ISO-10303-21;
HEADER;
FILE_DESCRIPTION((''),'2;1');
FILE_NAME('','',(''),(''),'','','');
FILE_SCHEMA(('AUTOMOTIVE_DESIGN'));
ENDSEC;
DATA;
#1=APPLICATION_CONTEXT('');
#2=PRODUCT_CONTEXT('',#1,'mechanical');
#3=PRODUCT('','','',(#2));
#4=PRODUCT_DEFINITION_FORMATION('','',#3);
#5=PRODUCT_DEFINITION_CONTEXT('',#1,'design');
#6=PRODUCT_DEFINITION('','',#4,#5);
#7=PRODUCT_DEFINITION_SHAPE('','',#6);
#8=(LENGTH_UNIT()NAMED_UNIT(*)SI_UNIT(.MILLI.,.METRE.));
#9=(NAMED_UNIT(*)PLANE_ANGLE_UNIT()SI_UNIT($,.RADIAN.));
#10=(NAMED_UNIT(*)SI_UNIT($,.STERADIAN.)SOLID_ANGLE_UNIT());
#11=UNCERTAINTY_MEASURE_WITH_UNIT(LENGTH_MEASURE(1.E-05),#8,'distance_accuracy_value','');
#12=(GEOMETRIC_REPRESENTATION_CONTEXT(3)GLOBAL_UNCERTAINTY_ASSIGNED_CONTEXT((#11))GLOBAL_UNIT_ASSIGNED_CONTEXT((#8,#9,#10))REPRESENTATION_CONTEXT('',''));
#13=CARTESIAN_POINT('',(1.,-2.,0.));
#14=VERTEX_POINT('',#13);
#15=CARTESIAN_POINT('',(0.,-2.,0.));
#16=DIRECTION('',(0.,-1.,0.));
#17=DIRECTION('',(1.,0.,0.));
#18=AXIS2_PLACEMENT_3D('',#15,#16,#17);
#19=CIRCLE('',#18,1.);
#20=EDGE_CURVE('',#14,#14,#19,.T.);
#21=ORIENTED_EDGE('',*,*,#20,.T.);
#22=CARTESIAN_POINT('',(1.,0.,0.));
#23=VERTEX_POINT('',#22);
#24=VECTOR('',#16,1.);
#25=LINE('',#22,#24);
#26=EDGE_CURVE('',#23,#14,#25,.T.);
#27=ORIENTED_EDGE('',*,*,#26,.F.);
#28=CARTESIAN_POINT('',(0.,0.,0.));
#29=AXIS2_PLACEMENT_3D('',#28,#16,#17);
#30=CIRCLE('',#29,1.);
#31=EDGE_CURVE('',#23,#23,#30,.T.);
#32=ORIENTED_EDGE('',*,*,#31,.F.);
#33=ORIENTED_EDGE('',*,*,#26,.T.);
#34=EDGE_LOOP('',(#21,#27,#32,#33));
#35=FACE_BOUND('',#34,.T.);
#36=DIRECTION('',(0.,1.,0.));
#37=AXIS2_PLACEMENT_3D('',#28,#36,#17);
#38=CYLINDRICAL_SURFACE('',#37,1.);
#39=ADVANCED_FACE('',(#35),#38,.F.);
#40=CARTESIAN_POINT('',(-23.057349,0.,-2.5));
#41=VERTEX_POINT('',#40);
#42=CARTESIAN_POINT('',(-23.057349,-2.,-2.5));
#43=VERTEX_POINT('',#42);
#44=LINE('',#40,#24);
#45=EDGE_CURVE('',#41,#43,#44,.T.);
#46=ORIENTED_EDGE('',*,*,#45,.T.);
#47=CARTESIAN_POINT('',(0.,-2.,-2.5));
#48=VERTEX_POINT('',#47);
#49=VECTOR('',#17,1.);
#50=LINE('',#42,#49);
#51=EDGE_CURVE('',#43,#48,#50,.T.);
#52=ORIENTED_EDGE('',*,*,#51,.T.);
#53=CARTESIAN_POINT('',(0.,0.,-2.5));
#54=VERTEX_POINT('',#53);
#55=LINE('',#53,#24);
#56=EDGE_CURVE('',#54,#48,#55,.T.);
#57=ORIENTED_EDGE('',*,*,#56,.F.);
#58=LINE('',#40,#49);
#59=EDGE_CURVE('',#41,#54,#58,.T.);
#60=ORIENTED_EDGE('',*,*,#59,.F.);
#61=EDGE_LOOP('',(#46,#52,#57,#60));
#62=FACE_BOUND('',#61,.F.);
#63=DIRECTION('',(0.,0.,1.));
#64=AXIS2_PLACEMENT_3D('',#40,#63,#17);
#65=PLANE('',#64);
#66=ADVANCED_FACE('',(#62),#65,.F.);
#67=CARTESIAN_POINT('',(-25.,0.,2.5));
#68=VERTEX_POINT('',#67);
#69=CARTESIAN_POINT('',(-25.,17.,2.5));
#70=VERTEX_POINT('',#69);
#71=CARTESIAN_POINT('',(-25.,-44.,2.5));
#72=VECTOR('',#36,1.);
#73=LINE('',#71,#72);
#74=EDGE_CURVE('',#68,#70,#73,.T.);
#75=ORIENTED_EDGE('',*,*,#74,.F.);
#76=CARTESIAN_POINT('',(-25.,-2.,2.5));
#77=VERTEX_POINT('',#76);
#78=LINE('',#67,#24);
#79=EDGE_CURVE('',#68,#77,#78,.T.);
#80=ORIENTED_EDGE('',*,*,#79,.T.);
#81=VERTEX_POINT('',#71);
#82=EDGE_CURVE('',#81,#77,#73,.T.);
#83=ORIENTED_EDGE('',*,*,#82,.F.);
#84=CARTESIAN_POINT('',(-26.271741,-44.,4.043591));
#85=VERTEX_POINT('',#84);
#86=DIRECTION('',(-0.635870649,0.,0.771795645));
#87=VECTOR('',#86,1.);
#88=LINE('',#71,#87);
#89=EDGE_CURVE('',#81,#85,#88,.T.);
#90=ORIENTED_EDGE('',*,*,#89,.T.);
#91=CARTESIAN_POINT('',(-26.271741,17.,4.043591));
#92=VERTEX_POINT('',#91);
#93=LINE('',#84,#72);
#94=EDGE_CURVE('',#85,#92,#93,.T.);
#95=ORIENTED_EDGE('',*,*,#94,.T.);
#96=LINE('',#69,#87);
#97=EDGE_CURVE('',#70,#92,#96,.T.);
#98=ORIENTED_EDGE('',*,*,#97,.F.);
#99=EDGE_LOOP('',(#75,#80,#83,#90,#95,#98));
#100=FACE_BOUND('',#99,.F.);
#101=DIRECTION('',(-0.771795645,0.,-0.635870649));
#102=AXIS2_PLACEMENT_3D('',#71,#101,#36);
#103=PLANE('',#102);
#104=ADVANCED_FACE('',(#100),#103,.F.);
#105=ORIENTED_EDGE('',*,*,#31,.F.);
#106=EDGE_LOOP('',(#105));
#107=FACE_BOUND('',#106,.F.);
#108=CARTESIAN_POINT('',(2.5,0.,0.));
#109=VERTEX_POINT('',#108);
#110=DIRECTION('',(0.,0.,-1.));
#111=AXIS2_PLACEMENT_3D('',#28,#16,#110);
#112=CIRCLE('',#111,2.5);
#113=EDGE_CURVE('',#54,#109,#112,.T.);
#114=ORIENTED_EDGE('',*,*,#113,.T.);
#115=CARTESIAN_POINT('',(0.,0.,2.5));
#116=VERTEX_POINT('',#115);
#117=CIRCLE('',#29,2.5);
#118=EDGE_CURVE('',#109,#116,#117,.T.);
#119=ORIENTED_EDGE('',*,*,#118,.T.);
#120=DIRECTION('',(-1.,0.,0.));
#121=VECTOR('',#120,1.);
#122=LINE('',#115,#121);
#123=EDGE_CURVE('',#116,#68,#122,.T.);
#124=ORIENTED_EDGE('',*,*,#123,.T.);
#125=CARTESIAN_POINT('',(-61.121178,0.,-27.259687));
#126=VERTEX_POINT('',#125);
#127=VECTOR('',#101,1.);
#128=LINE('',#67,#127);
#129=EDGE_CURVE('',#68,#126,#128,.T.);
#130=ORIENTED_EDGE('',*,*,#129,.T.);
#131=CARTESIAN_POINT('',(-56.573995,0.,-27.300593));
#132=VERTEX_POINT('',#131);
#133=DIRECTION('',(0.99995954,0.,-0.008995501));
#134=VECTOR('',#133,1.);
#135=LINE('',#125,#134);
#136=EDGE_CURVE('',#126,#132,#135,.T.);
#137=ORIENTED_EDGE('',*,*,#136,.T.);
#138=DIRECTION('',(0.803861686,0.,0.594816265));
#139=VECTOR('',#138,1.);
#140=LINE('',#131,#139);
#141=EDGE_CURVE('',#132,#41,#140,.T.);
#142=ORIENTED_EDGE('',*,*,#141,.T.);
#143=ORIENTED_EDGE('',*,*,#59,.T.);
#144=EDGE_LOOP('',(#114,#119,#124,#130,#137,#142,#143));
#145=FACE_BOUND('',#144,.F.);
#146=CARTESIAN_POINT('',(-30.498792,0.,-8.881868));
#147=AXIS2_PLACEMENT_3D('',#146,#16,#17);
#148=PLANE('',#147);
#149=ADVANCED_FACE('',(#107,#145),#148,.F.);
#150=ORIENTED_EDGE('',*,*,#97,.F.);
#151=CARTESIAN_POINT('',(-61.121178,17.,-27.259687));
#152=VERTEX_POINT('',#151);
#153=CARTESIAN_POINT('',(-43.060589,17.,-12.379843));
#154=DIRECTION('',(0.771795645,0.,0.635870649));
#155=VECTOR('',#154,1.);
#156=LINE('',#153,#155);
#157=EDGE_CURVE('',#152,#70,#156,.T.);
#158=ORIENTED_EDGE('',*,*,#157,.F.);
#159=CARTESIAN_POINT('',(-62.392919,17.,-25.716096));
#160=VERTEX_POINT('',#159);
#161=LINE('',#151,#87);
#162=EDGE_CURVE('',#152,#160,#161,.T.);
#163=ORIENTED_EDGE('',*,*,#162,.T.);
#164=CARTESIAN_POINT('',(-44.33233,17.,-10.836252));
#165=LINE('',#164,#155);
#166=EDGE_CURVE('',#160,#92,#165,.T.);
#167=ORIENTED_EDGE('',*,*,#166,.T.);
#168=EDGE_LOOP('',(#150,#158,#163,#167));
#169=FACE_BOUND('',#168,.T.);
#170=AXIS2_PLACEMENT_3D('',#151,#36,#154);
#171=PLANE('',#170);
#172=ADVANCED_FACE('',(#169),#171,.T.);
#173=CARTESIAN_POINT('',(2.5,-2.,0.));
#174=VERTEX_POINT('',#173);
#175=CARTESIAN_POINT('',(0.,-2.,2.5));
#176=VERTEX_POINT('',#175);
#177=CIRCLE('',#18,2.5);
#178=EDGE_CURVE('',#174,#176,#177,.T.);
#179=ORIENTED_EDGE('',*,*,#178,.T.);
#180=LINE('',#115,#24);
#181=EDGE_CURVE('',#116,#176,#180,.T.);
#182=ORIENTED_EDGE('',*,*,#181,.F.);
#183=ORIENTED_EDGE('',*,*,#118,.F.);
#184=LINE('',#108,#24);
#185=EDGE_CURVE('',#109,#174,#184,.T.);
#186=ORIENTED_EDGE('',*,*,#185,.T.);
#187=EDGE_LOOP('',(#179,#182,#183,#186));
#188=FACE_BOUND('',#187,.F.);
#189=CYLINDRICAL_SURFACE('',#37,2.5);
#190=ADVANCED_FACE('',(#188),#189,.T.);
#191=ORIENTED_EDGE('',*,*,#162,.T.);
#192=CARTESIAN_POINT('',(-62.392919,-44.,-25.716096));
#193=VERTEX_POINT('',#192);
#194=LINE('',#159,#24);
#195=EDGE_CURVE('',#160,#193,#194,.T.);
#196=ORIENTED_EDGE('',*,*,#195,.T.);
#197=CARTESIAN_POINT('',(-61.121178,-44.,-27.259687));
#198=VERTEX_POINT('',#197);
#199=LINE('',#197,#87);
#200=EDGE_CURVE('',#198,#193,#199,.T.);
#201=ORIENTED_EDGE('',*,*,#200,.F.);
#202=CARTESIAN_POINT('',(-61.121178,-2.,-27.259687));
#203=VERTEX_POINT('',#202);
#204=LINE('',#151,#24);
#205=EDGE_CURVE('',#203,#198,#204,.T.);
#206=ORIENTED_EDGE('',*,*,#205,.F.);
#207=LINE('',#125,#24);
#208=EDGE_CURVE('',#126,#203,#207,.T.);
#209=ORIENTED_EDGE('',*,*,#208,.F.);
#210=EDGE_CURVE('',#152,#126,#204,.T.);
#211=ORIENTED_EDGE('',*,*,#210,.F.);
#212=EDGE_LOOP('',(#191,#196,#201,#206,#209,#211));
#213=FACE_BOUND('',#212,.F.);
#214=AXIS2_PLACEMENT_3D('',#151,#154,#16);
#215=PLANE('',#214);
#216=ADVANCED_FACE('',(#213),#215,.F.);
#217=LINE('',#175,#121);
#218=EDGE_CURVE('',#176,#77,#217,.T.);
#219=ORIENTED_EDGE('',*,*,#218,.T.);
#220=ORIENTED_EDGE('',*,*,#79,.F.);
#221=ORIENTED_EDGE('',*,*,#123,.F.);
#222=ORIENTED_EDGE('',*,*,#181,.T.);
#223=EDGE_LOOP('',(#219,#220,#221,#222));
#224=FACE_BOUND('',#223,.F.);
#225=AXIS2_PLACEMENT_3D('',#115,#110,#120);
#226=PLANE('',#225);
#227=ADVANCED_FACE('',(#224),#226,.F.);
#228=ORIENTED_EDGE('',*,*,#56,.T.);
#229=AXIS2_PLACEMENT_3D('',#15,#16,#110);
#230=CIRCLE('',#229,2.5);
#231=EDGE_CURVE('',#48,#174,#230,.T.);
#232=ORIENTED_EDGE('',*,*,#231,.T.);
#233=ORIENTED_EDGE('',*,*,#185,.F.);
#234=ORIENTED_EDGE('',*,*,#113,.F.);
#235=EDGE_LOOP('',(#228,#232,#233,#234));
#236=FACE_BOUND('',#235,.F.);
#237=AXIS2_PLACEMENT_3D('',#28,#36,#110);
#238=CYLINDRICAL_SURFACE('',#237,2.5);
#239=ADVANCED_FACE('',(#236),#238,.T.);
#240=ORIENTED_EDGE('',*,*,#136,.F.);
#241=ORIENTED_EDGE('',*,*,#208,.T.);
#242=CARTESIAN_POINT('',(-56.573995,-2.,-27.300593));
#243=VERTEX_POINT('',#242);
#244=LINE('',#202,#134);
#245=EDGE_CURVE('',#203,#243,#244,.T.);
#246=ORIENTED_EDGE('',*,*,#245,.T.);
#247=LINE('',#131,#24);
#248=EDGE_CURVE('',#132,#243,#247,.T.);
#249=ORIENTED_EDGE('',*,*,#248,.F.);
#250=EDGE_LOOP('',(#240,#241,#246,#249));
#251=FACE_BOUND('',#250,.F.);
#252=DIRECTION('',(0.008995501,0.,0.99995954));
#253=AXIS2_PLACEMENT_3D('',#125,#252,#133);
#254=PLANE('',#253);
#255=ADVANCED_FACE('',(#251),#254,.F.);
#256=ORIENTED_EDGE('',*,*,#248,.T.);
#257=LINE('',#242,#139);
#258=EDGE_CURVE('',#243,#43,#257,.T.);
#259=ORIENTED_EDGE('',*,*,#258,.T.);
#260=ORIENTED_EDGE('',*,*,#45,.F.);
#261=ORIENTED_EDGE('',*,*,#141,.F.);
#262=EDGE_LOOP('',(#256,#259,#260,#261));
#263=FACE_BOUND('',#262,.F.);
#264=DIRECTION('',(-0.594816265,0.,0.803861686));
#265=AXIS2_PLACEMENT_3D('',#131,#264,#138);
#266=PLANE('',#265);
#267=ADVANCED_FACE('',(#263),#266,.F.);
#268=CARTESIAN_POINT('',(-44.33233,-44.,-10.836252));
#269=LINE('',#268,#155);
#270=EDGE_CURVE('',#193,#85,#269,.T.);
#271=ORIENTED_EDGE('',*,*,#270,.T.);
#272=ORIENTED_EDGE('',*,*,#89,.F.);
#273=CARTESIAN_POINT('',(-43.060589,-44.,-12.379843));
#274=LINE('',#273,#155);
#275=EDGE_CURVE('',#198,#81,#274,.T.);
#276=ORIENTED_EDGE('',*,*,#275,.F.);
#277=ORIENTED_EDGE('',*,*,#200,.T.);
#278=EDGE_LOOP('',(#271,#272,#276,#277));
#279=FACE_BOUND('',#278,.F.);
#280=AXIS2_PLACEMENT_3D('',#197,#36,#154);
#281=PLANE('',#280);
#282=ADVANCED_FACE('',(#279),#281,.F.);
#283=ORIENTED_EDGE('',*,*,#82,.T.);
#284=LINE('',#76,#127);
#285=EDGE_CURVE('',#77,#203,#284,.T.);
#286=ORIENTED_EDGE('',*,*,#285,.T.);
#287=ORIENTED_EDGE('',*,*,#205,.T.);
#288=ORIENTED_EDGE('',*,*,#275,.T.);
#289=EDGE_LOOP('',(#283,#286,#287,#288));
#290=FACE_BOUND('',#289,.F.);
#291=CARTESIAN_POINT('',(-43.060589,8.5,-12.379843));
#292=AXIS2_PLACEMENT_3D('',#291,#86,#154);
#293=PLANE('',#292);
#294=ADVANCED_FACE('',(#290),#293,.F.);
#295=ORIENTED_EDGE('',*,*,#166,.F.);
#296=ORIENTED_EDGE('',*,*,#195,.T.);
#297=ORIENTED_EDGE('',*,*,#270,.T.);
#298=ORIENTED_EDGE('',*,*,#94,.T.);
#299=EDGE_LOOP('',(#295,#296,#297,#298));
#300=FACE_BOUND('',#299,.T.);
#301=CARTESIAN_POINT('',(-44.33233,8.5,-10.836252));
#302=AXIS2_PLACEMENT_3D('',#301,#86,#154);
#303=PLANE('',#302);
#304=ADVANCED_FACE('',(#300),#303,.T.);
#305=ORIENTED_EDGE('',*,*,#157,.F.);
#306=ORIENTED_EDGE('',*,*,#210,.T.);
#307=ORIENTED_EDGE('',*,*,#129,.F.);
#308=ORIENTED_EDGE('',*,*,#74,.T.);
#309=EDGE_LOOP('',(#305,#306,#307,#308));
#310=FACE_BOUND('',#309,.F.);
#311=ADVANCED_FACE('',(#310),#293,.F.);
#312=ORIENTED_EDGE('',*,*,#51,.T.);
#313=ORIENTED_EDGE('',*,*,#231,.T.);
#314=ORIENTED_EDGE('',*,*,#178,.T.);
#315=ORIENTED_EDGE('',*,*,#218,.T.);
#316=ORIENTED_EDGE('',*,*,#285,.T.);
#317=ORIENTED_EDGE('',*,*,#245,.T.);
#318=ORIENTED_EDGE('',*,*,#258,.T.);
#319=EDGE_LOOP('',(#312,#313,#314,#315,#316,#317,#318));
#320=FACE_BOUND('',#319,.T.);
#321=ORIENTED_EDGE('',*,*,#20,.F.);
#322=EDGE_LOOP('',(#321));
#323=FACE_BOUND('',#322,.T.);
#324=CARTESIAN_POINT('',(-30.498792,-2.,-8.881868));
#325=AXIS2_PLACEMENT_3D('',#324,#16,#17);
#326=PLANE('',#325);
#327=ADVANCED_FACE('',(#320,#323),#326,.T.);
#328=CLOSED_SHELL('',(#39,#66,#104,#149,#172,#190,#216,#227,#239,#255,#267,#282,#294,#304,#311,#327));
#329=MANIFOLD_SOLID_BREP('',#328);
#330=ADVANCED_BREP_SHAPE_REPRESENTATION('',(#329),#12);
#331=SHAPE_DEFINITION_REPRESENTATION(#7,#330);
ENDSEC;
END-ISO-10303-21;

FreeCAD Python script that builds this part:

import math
import FreeCAD as App
import Part
import Sketcher
from FreeCAD import Vector

doc = App.newDocument("Part")
body = doc.addObject("PartDesign::Body", "Body")

sketch1 = doc.addObject("Sketcher::SketchObject", "Sketch")
body.addObject(sketch1)
sketch1.AttachmentSupport = (doc.XZ_Plane, [""])
sketch1.MapMode = "FlatFace"
sketch1.addGeometry(Part.LineSegment(Vector(0, 2.5, 0), Vector(-25, 2.5, 0)), False)
sketch1.addGeometry(Part.LineSegment(Vector(-25, 2.5, 0), Vector(-61.1, -27.3, 0)), False)
sketch1.addGeometry(Part.LineSegment(Vector(-61.1, -27.3, 0), Vector(-56.6, -27.3, 0)), False)
sketch1.addGeometry(Part.LineSegment(Vector(-56.6, -27.3, 0), Vector(-23.1, -2.5, 0)), False)
sketch1.addGeometry(Part.LineSegment(Vector(-23.1, -2.5, 0), Vector(0, -2.5, 0)), False)
sketch1.addGeometry(Part.ArcOfCircle(Part.Circle(Vector(0, 0, 0), Vector(0, 0, 1), 2.5), math.radians(-90), math.radians(0)), False)
sketch1.addGeometry(Part.ArcOfCircle(Part.Circle(Vector(0, 0, 0), Vector(0, 0, 1), 2.5), math.radians(0), math.radians(90)), False)
sketch1.addGeometry(Part.Circle(Vector(0, 0, 0), Vector(0, 0, 1), 1), False)
sketch1.addConstraint(Sketcher.Constraint("Coincident", 0, 2, 1, 1))
sketch1.addConstraint(Sketcher.Constraint("Coincident", 1, 2, 2, 1))
sketch1.addConstraint(Sketcher.Constraint("Coincident", 2, 2, 3, 1))
sketch1.addConstraint(Sketcher.Constraint("Coincident", 3, 2, 4, 1))
sketch1.addConstraint(Sketcher.Constraint("Tangent", 4, 2, 5, 1))
sketch1.addConstraint(Sketcher.Constraint("Tangent", 5, 2, 6, 1))
sketch1.addConstraint(Sketcher.Constraint("Tangent", 6, 2, 0, 1))
sketch1.addConstraint(Sketcher.Constraint("Horizontal", 0))
sketch1.addConstraint(Sketcher.Constraint("Horizontal", 4))
sketch1.addConstraint(Sketcher.Constraint("Coincident", 5, 3, -1, 1))
sketch1.addConstraint(Sketcher.Constraint("Coincident", 7, 3, -1, 1))
sketch1.addConstraint(Sketcher.Constraint("Equal", 5, 6))
sketch1.addConstraint(Sketcher.Constraint("PointOnObject", 5, 2, -1))
sketch1.addConstraint(Sketcher.Constraint("Diameter", 7, 2.0))
sketch1.addConstraint(Sketcher.Constraint("Radius", 5, 2.5))
sketch1.addConstraint(Sketcher.Constraint("DistanceX", 0, 2, 0, 1, 25.0))
sketch1.addConstraint(Sketcher.Constraint("DistanceX", 4, 1, 4, 2, 23.057349))
sketch1.addConstraint(Sketcher.Constraint("Distance", 1, 46.801479))
sketch1.addConstraint(Sketcher.Constraint("Distance", 2, 4.547367))
sketch1.addConstraint(Sketcher.Constraint("Distance", 3, 41.694544))
sketch1.addConstraint(Sketcher.Constraint("DistanceX", 1, 2, -1, 1, 61.121178))
pad1 = doc.addObject("PartDesign::Pad", "Pad")
body.addObject(pad1)
pad1.Profile = sketch1
pad1.Length = 2

sketch2 = doc.addObject("Sketcher::SketchObject", "Sketch001")
body.addObject(sketch2)
sketch2.Placement = App.Placement(Vector(-11.335193, 0, 13.758226), App.Rotation(Vector(0.771795645, 0, 0.635870649), Vector(0, 1, 0), Vector(-0.635870649, 0, 0.771795645), "ZXY"))
sketch2.addGeometry(Part.LineSegment(Vector(-65, 17, 0), Vector(-65, -44, 0)), False)
sketch2.addGeometry(Part.LineSegment(Vector(-65, -44, 0), Vector(-18, -44, 0)), False)
sketch2.addGeometry(Part.LineSegment(Vector(-18, -44, 0), Vector(-18, 17, 0)), False)
sketch2.addGeometry(Part.LineSegment(Vector(-18, 17, 0), Vector(-65, 17, 0)), False)
sketch2.addConstraint(Sketcher.Constraint("Coincident", 0, 2, 1, 1))
sketch2.addConstraint(Sketcher.Constraint("Coincident", 1, 2, 2, 1))
sketch2.addConstraint(Sketcher.Constraint("Coincident", 2, 2, 3, 1))
sketch2.addConstraint(Sketcher.Constraint("Coincident", 3, 2, 0, 1))
sketch2.addConstraint(Sketcher.Constraint("Vertical", 0))
sketch2.addConstraint(Sketcher.Constraint("Horizontal", 1))
sketch2.addConstraint(Sketcher.Constraint("Vertical", 2))
sketch2.addConstraint(Sketcher.Constraint("Horizontal", 3))
sketch2.addConstraint(Sketcher.Constraint("DistanceY", 0, 2, 0, 1, 61.0))
sketch2.addConstraint(Sketcher.Constraint("DistanceY", 0, 2, -1, 1, 44.0))
sketch2.addConstraint(Sketcher.Constraint("DistanceX", 1, 1, 1, 2, 46.801479))
sketch2.addConstraint(Sketcher.Constraint("DistanceX", 0, 2, -1, 1, 64.506694))
pad2 = doc.addObject("PartDesign::Pad", "Pad001")
body.addObject(pad2)
pad2.Profile = sketch2
pad2.Length = 2

doc.recompute()
